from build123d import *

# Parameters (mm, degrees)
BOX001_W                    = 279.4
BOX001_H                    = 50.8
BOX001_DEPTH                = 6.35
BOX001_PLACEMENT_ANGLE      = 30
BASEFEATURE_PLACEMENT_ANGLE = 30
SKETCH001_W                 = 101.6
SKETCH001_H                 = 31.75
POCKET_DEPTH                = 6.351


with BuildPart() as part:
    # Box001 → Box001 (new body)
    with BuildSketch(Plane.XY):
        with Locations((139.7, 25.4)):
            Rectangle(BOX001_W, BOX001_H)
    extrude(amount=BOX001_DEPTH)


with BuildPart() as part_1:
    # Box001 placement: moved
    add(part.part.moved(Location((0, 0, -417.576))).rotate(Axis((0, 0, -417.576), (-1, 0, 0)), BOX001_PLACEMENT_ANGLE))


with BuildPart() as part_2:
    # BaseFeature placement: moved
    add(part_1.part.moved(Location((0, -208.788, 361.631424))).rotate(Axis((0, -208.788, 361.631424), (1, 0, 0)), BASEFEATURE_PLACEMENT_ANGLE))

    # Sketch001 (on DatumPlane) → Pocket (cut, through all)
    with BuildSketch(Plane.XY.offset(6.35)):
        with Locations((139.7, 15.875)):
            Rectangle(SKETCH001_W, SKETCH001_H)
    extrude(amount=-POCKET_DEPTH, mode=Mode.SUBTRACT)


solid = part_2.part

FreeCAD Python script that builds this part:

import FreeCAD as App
import Part
import Sketcher
Q = App.Units.Quantity

doc = App.newDocument("Part")
body = doc.addObject("PartDesign::Body", "Body")

# Sketch on XY plane
sketch1 = body.newObject("Sketcher::SketchObject", "Sketch")
sketch1.AttachmentSupport = (doc.getObject("XY_Plane"), [""])
sketch1.MapMode = "FlatFace"
sketch1.addGeometry(Part.LineSegment(App.Vector(0, 51, 0), App.Vector(0, 0, 0)), False)
sketch1.addGeometry(Part.LineSegment(App.Vector(0, 0, 0), App.Vector(279, 0, 0)), False)
sketch1.addGeometry(Part.LineSegment(App.Vector(279, 0, 0), App.Vector(279, 51, 0)), False)
sketch1.addGeometry(Part.LineSegment(App.Vector(279, 51, 0), App.Vector(0, 51, 0)), False)
sketch1.addConstraint(Sketcher.Constraint("Coincident", 0, 2, 1, 1))
sketch1.addConstraint(Sketcher.Constraint("Coincident", 1, 2, 2, 1))
sketch1.addConstraint(Sketcher.Constraint("Coincident", 2, 2, 3, 1))
sketch1.addConstraint(Sketcher.Constraint("Coincident", 3, 2, 0, 1))
sketch1.addConstraint(Sketcher.Constraint("Vertical", 0))
sketch1.addConstraint(Sketcher.Constraint("Horizontal", 1))
sketch1.addConstraint(Sketcher.Constraint("Vertical", 2))
sketch1.addConstraint(Sketcher.Constraint("Horizontal", 3))
sketch1.addConstraint(Sketcher.Constraint("Coincident", 0, 2, -1, 1))
sketch1.addConstraint(Sketcher.Constraint("DistanceX", 1, 1, 1, 2, Q("11 in")))
sketch1.addConstraint(Sketcher.Constraint("DistanceY", 0, 2, 0, 1, Q("2 in")))
pad1 = body.newObject("PartDesign::Pad", "Pad")
pad1.Profile = sketch1
pad1.Length = Q("0.25 in")
body2 = doc.addObject("PartDesign::Body", "Body001")
doc.recompute()

body.Placement = App.Placement(App.Vector(0, 0, -417.576), App.Rotation(App.Vector(-1, 0, 0), 30))
boolean = body2.newObject("PartDesign::Boolean", "Boolean")
boolean.Type = "Fuse"
boolean.addObjects([body])
body3 = doc.addObject("PartDesign::Body", "Body002")
doc.recompute()

body2.Placement = App.Placement(App.Vector(0, -208.788, 361.631424), App.Rotation(App.Vector(1, 0, 0), 30))
boolean2 = body3.newObject("PartDesign::Boolean", "Boolean001")
boolean2.Type = "Fuse"
boolean2.addObjects([body2])

# Sketch on XY plane
sketch2 = body3.newObject("Sketcher::SketchObject", "Sketch001")
sketch2.AttachmentSupport = (doc.getObject("XY_Plane002"), [""])
sketch2.MapMode = "FlatFace"
sketch2.AttachmentOffset = App.Placement(App.Vector(0, 0, 0.25 * 25.4), App.Rotation())
sketch2.addGeometry(Part.LineSegment(App.Vector(89, 32, 0), App.Vector(89, 0, 0)), False)
sketch2.addGeometry(Part.LineSegment(App.Vector(89, 0, 0), App.Vector(190, 0, 0)), False)
sketch2.addGeometry(Part.LineSegment(App.Vector(190, 0, 0), App.Vector(190, 32, 0)), False)
sketch2.addGeometry(Part.LineSegment(App.Vector(190, 32, 0), App.Vector(89, 32, 0)), False)
sketch2.addConstraint(Sketcher.Constraint("Coincident", 0, 2, 1, 1))
sketch2.addConstraint(Sketcher.Constraint("Coincident", 1, 2, 2, 1))
sketch2.addConstraint(Sketcher.Constraint("Coincident", 2, 2, 3, 1))
sketch2.addConstraint(Sketcher.Constraint("Coincident", 3, 2, 0, 1))
sketch2.addConstraint(Sketcher.Constraint("Vertical", 0))
sketch2.addConstraint(Sketcher.Constraint("Horizontal", 1))
sketch2.addConstraint(Sketcher.Constraint("Vertical", 2))
sketch2.addConstraint(Sketcher.Constraint("Horizontal", 3))
sketch2.addConstraint(Sketcher.Constraint("PointOnObject", 0, 2, -1))
sketch2.addConstraint(Sketcher.Constraint("DistanceX", 1, 1, 1, 2, Q("4 in")))
sketch2.addConstraint(Sketcher.Constraint("DistanceY", 0, 2, 0, 1, Q("1.25 in")))
sketch2.addConstraint(Sketcher.Constraint("DistanceX", -1, 1, 0, 2, Q("3.5 in")))
pocket1 = body3.newObject("PartDesign::Pocket", "Pocket")
pocket1.Profile = sketch2
pocket1.Type = "ThroughAll"

doc.recompute()
